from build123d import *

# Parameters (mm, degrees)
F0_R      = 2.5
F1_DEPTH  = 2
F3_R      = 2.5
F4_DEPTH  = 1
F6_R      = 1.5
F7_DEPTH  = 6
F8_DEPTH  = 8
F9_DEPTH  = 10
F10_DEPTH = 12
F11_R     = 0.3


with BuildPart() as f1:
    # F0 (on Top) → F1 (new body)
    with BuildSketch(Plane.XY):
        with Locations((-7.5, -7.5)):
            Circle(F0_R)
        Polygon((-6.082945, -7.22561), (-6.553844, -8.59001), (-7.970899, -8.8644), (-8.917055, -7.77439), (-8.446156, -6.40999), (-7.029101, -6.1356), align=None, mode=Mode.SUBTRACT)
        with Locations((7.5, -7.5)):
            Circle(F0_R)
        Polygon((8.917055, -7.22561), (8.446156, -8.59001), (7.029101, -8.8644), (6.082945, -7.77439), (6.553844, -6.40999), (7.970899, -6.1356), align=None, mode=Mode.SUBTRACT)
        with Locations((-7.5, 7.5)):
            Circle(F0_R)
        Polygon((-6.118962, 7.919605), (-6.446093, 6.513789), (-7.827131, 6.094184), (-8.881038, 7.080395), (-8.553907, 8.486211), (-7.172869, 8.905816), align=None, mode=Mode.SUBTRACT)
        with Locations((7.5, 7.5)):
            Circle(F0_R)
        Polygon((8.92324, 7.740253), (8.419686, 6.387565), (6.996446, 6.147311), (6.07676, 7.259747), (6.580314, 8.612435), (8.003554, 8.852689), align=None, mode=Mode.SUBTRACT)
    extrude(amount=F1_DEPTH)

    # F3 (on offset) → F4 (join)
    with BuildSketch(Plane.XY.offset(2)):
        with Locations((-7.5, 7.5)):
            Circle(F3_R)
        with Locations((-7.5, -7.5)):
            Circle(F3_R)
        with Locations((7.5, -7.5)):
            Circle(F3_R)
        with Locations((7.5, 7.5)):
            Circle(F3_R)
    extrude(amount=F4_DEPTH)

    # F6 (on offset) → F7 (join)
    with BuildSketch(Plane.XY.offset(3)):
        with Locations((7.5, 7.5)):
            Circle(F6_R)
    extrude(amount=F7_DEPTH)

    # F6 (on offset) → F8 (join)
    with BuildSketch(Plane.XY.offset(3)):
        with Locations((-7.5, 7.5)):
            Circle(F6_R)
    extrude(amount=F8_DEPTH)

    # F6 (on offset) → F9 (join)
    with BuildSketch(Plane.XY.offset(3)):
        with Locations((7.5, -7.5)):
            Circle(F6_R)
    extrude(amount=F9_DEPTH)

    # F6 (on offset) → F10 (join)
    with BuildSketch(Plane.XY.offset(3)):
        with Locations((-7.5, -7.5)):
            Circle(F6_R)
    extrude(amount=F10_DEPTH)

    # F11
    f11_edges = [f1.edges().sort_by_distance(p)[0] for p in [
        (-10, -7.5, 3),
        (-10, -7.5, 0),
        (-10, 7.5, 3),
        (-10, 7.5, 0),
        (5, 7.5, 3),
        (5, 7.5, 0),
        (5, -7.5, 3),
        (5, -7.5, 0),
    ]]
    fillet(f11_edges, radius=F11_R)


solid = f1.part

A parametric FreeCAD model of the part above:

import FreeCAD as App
import Part
import Sketcher
from FreeCAD import Vector


def edges_at(feature, points):
    """Names of the edges that pass closest to the given points."""
    edges = feature.Shape.Edges
    near = lambda p: min(range(len(edges)), key=lambda i: edges[i].distToShape(Part.Vertex(*p))[0])
    return sorted({f"Edge{near(p) + 1}" for p in points})

doc = App.newDocument("Part")
body = doc.addObject("PartDesign::Body", "Body")
body.AllowCompound = True

# Sketch on XY plane
sketch1 = body.newObject("Sketcher::SketchObject", "Sketch")
sketch1.AttachmentSupport = (doc.getObject("XY_Plane"), [""])
sketch1.MapMode = "FlatFace"
sketch1.addGeometry(Part.Circle(Vector(-7.5, -7.5, 0), Vector(0, 0, 1), 2.5), False)
sketch1.addGeometry(Part.LineSegment(Vector(-7, -6.1, 0), Vector(-6.1, -7.2, 0)), False)
sketch1.addGeometry(Part.LineSegment(Vector(-6.1, -7.2, 0), Vector(-6.6, -8.6, 0)), False)
sketch1.addGeometry(Part.LineSegment(Vector(-6.6, -8.6, 0), Vector(-8, -8.9, 0)), False)
sketch1.addGeometry(Part.LineSegment(Vector(-8, -8.9, 0), Vector(-8.9, -7.8, 0)), False)
sketch1.addGeometry(Part.LineSegment(Vector(-8.9, -7.8, 0), Vector(-8.4, -6.4, 0)), False)
sketch1.addGeometry(Part.LineSegment(Vector(-8.4, -6.4, 0), Vector(-7, -6.1, 0)), False)
sketch1.addGeometry(Part.Circle(Vector(7.5, -7.5, 0), Vector(0, 0, 1), 2.5), False)
sketch1.addGeometry(Part.LineSegment(Vector(8, -6.1, 0), Vector(8.9, -7.2, 0)), False)
sketch1.addGeometry(Part.LineSegment(Vector(8.9, -7.2, 0), Vector(8.4, -8.6, 0)), False)
sketch1.addGeometry(Part.LineSegment(Vector(8.4, -8.6, 0), Vector(7, -8.9, 0)), False)
sketch1.addGeometry(Part.LineSegment(Vector(7, -8.9, 0), Vector(6.1, -7.8, 0)), False)
sketch1.addGeometry(Part.LineSegment(Vector(6.1, -7.8, 0), Vector(6.6, -6.4, 0)), False)
sketch1.addGeometry(Part.LineSegment(Vector(6.6, -6.4, 0), Vector(8, -6.1, 0)), False)
sketch1.addGeometry(Part.Circle(Vector(-7.5, 7.5, 0), Vector(0, 0, 1), 2.5), False)
sketch1.addGeometry(Part.LineSegment(Vector(-7.2, 8.9, 0), Vector(-6.1, 7.9, 0)), False)
sketch1.addGeometry(Part.LineSegment(Vector(-6.1, 7.9, 0), Vector(-6.4, 6.5, 0)), False)
sketch1.addGeometry(Part.LineSegment(Vector(-6.4, 6.5, 0), Vector(-7.8, 6.1, 0)), False)
sketch1.addGeometry(Part.LineSegment(Vector(-7.8, 6.1, 0), Vector(-8.9, 7.1, 0)), False)
sketch1.addGeometry(Part.LineSegment(Vector(-8.9, 7.1, 0), Vector(-8.6, 8.5, 0)), False)
sketch1.addGeometry(Part.LineSegment(Vector(-8.6, 8.5, 0), Vector(-7.2, 8.9, 0)), False)
sketch1.addGeometry(Part.Circle(Vector(7.5, 7.5, 0), Vector(0, 0, 1), 2.5), False)
sketch1.addGeometry(Part.LineSegment(Vector(8, 8.9, 0), Vector(8.9, 7.7, 0)), False)
sketch1.addGeometry(Part.LineSegment(Vector(8.9, 7.7, 0), Vector(8.4, 6.4, 0)), False)
sketch1.addGeometry(Part.LineSegment(Vector(8.4, 6.4, 0), Vector(7, 6.1, 0)), False)
sketch1.addGeometry(Part.LineSegment(Vector(7, 6.1, 0), Vector(6.1, 7.3, 0)), False)
sketch1.addGeometry(Part.LineSegment(Vector(6.1, 7.3, 0), Vector(6.6, 8.6, 0)), False)
sketch1.addGeometry(Part.LineSegment(Vector(6.6, 8.6, 0), Vector(8, 8.9, 0)), False)
sketch1.addConstraint(Sketcher.Constraint("Coincident", 1, 2, 2, 1))
sketch1.addConstraint(Sketcher.Constraint("Coincident", 2, 2, 3, 1))
sketch1.addConstraint(Sketcher.Constraint("Coincident", 3, 2, 4, 1))
sketch1.addConstraint(Sketcher.Constraint("Coincident", 4, 2, 5, 1))
sketch1.addConstraint(Sketcher.Constraint("Coincident", 5, 2, 6, 1))
sketch1.addConstraint(Sketcher.Constraint("Coincident", 6, 2, 1, 1))
sketch1.addConstraint(Sketcher.Constraint("Coincident", 8, 2, 9, 1))
sketch1.addConstraint(Sketcher.Constraint("Coincident", 9, 2, 10, 1))
sketch1.addConstraint(Sketcher.Constraint("Coincident", 10, 2, 11, 1))
sketch1.addConstraint(Sketcher.Constraint("Coincident", 11, 2, 12, 1))
sketch1.addConstraint(Sketcher.Constraint("Coincident", 12, 2, 13, 1))
sketch1.addConstraint(Sketcher.Constraint("Coincident", 13, 2, 8, 1))
sketch1.addConstraint(Sketcher.Constraint("Coincident", 15, 2, 16, 1))
sketch1.addConstraint(Sketcher.Constraint("Coincident", 16, 2, 17, 1))
sketch1.addConstraint(Sketcher.Constraint("Coincident", 17, 2, 18, 1))
sketch1.addConstraint(Sketcher.Constraint("Coincident", 18, 2, 19, 1))
sketch1.addConstraint(Sketcher.Constraint("Coincident", 19, 2, 20, 1))
sketch1.addConstraint(Sketcher.Constraint("Coincident", 20, 2, 15, 1))
sketch1.addConstraint(Sketcher.Constraint("Coincident", 22, 2, 23, 1))
sketch1.addConstraint(Sketcher.Constraint("Coincident", 23, 2, 24, 1))
sketch1.addConstraint(Sketcher.Constraint("Coincident", 24, 2, 25, 1))
sketch1.addConstraint(Sketcher.Constraint("Coincident", 25, 2, 26, 1))
sketch1.addConstraint(Sketcher.Constraint("Coincident", 26, 2, 27, 1))
sketch1.addConstraint(Sketcher.Constraint("Coincident", 27, 2, 22, 1))
sketch1.addConstraint(Sketcher.Constraint("Equal", 0, 7))
sketch1.addConstraint(Sketcher.Constraint("Equal", 7, 14))
sketch1.addConstraint(Sketcher.Constraint("Equal", 14, 21))
sketch1.addConstraint(Sketcher.Constraint("Symmetric", 7, 3, 14, 3, -1, 1))
sketch1.addConstraint(Sketcher.Constraint("Symmetric", 0, 3, 21, 3, -1, 1))
sketch1.addConstraint(Sketcher.Constraint("Symmetric", 0, 3, 7, 3, -2))
sketch1.addConstraint(Sketcher.Constraint("Parallel", 1, 4))
sketch1.addConstraint(Sketcher.Constraint("Parallel", 2, 5))
sketch1.addConstraint(Sketcher.Constraint("Parallel", 3, 6))
sketch1.addConstraint(Sketcher.Constraint("Parallel", 4, 8))
sketch1.addConstraint(Sketcher.Constraint("Parallel", 5, 9))
sketch1.addConstraint(Sketcher.Constraint("Parallel", 6, 10))
sketch1.addConstraint(Sketcher.Constraint("Parallel", 8, 11))
sketch1.addConstraint(Sketcher.Constraint("Parallel", 9, 12))
sketch1.addConstraint(Sketcher.Constraint("Parallel", 10, 13))
sketch1.addConstraint(Sketcher.Constraint("Parallel", 15, 18))
sketch1.addConstraint(Sketcher.Constraint("Parallel", 16, 19))
sketch1.addConstraint(Sketcher.Constraint("Parallel", 17, 20))
sketch1.addConstraint(Sketcher.Constraint("Parallel", 22, 25))
sketch1.addConstraint(Sketcher.Constraint("Parallel", 23, 26))
sketch1.addConstraint(Sketcher.Constraint("Parallel", 24, 27))
sketch1.addConstraint(Sketcher.Constraint("Horizontal", 1, 2, 8, 2))
sketch1.addConstraint(Sketcher.Constraint("Horizontal", 2, 2, 9, 2))
sketch1.addConstraint(Sketcher.Constraint("Horizontal", 3, 2, 10, 2))
sketch1.addConstraint(Sketcher.Constraint("Horizontal", 4, 2, 11, 2))
sketch1.addConstraint(Sketcher.Constraint("Horizontal", 5, 2, 12, 2))
sketch1.addConstraint(Sketcher.Constraint("Equal", 1, 2))
sketch1.addConstraint(Sketcher.Constraint("Equal", 2, 3))
sketch1.addConstraint(Sketcher.Constraint("Equal", 3, 4))
sketch1.addConstraint(Sketcher.Constraint("Equal", 13, 15))
sketch1.addConstraint(Sketcher.Constraint("Equal", 15, 16))
sketch1.addConstraint(Sketcher.Constraint("Equal", 16, 17))
sketch1.addConstraint(Sketcher.Constraint("Equal", 17, 18))
sketch1.addConstraint(Sketcher.Constraint("Equal", 20, 22))
sketch1.addConstraint(Sketcher.Constraint("Equal", 22, 23))
sketch1.addConstraint(Sketcher.Constraint("Equal", 23, 24))
sketch1.addConstraint(Sketcher.Constraint("Equal", 24, 25))
sketch1.addConstraint(Sketcher.Constraint("Diameter", 0, 5.0))
sketch1.addConstraint(Sketcher.Constraint("DistanceX", 0, 3, 7, 3, 15.0))
sketch1.addConstraint(Sketcher.Constraint("DistanceY", 0, 3, 14, 3, 15.0))
sketch1.addConstraint(Sketcher.Constraint("DistanceX", 1, 2, 8, 2, 15.0))
sketch1.addConstraint(Sketcher.Constraint("DistanceX", 3, 2, -1, 1, 7.970899))
sketch1.addConstraint(Sketcher.Constraint("DistanceY", 3, 2, -1, 1, 8.8644))
sketch1.addConstraint(Sketcher.Constraint("DistanceX", 6, 2, -1, 1, 7.029101))
sketch1.addConstraint(Sketcher.Constraint("DistanceY", 6, 2, -1, 1, 6.1356))
sketch1.addConstraint(Sketcher.Constraint("DistanceX", 2, 2, 1, 2, 0.470899))
sketch1.addConstraint(Sketcher.Constraint("DistanceY", 2, 2, 1, 2, 1.3644))
sketch1.addConstraint(Sketcher.Constraint("DistanceY", 1, 2, 16, 2, 13.739399))
sketch1.addConstraint(Sketcher.Constraint("DistanceX", 12, 2, 24, 2, 0.442602))
sketch1.addConstraint(Sketcher.Constraint("DistanceY", 12, 2, 24, 2, 12.557301))
sketch1.addConstraint(Sketcher.Constraint("DistanceX", 15, 2, -1, 1, 6.118962))
sketch1.addConstraint(Sketcher.Constraint("DistanceX", 17, 2, -1, 1, 7.827131))
sketch1.addConstraint(Sketcher.Constraint("DistanceY", -1, 1, 19, 2, 8.486211))
sketch1.addConstraint(Sketcher.Constraint("DistanceX", 20, 2, -1, 1, 7.172869))
sketch1.addConstraint(Sketcher.Constraint("DistanceX", -1, 1, 22, 2, 8.92324))
sketch1.addConstraint(Sketcher.Constraint("DistanceX", -1, 1, 25, 2, 6.07676))
sketch1.addConstraint(Sketcher.Constraint("DistanceY", -1, 1, 27, 2, 8.852689))
pad1 = body.newObject("PartDesign::Pad", "Pad")
pad1.Profile = sketch1
pad1.Length = 2

# Sketch on XY plane
sketch2 = body.newObject("Sketcher::SketchObject", "Sketch001")
sketch2.AttachmentSupport = (doc.getObject("XY_Plane"), [""])
sketch2.MapMode = "FlatFace"
sketch2.AttachmentOffset = App.Placement(Vector(0, 0, 2), App.Rotation())
sketch2.addGeometry(Part.Circle(Vector(-7.5, 7.5, 0), Vector(0, 0, 1), 2.5), False)
sketch2.addGeometry(Part.Circle(Vector(-7.5, -7.5, 0), Vector(0, 0, 1), 2.5), False)
sketch2.addGeometry(Part.Circle(Vector(7.5, -7.5, 0), Vector(0, 0, 1), 2.5), False)
sketch2.addGeometry(Part.Circle(Vector(7.5, 7.5, 0), Vector(0, 0, 1), 2.5), False)
sketch2.addConstraint(Sketcher.Constraint("Equal", 0, 1))
sketch2.addConstraint(Sketcher.Constraint("Equal", 1, 2))
sketch2.addConstraint(Sketcher.Constraint("Equal", 2, 3))
sketch2.addConstraint(Sketcher.Constraint("Symmetric", 0, 3, 2, 3, -1, 1))
sketch2.addConstraint(Sketcher.Constraint("Symmetric", 1, 3, 3, 3, -1, 1))
sketch2.addConstraint(Sketcher.Constraint("Symmetric", 1, 3, 2, 3, -2))
sketch2.addConstraint(Sketcher.Constraint("Diameter", 0, 5.0))
sketch2.addConstraint(Sketcher.Constraint("DistanceY", 1, 3, 0, 3, 15.0))
sketch2.addConstraint(Sketcher.Constraint("DistanceX", 1, 3, 2, 3, 15.0))
pad2 = body.newObject("PartDesign::Pad", "Pad001")
pad2.Profile = sketch2
pad2.Length = 1

# Sketch on XY plane
sketch3 = body.newObject("Sketcher::SketchObject", "Sketch002")
sketch3.AttachmentSupport = (doc.getObject("XY_Plane"), [""])
sketch3.MapMode = "FlatFace"
sketch3.AttachmentOffset = App.Placement(Vector(0, 0, 3), App.Rotation())
sketch3.addGeometry(Part.Circle(Vector(7.5, 7.5, 0), Vector(0, 0, 1), 1.5), False)
sketch3.addConstraint(Sketcher.Constraint("Diameter", 0, 3.0))
sketch3.addConstraint(Sketcher.Constraint("DistanceX", -1, 1, 0, 3, 7.5))
sketch3.addConstraint(Sketcher.Constraint("DistanceY", -1, 1, 0, 3, 7.5))
pad3 = body.newObject("PartDesign::Pad", "Pad002")
pad3.Profile = sketch3
pad3.Length = 6

# Sketch on XY plane
sketch4 = body.newObject("Sketcher::SketchObject", "Sketch003")
sketch4.AttachmentSupport = (doc.getObject("XY_Plane"), [""])
sketch4.MapMode = "FlatFace"
sketch4.AttachmentOffset = App.Placement(Vector(0, 0, 3), App.Rotation())
sketch4.addGeometry(Part.Circle(Vector(-7.5, 7.5, 0), Vector(0, 0, 1), 1.5), False)
sketch4.addConstraint(Sketcher.Constraint("Diameter", 0, 3.0))
sketch4.addConstraint(Sketcher.Constraint("DistanceX", 0, 3, -1, 1, 7.5))
sketch4.addConstraint(Sketcher.Constraint("DistanceY", -1, 1, 0, 3, 7.5))
pad4 = body.newObject("PartDesign::Pad", "Pad003")
pad4.Profile = sketch4
pad4.Length = 8

# Sketch on XY plane
sketch5 = body.newObject("Sketcher::SketchObject", "Sketch004")
sketch5.AttachmentSupport = (doc.getObject("XY_Plane"), [""])
sketch5.MapMode = "FlatFace"
sketch5.AttachmentOffset = App.Placement(Vector(0, 0, 3), App.Rotation())
sketch5.addGeometry(Part.Circle(Vector(7.5, -7.5, 0), Vector(0, 0, 1), 1.5), False)
sketch5.addConstraint(Sketcher.Constraint("Diameter", 0, 3.0))
sketch5.addConstraint(Sketcher.Constraint("DistanceX", -1, 1, 0, 3, 7.5))
sketch5.addConstraint(Sketcher.Constraint("DistanceY", 0, 3, -1, 1, 7.5))
pad5 = body.newObject("PartDesign::Pad", "Pad004")
pad5.Profile = sketch5
pad5.Length = 10

# Sketch on XY plane
sketch6 = body.newObject("Sketcher::SketchObject", "Sketch005")
sketch6.AttachmentSupport = (doc.getObject("XY_Plane"), [""])
sketch6.MapMode = "FlatFace"
sketch6.AttachmentOffset = App.Placement(Vector(0, 0, 3), App.Rotation())
sketch6.addGeometry(Part.Circle(Vector(-7.5, -7.5, 0), Vector(0, 0, 1), 1.5), False)
sketch6.addConstraint(Sketcher.Constraint("Diameter", 0, 3.0))
sketch6.addConstraint(Sketcher.Constraint("DistanceX", 0, 3, -1, 1, 7.5))
sketch6.addConstraint(Sketcher.Constraint("DistanceY", 0, 3, -1, 1, 7.5))
pad6 = body.newObject("PartDesign::Pad", "Pad005")
pad6.Profile = sketch6
pad6.Length = 12
doc.recompute()

fillet = body.newObject("PartDesign::Fillet", "Fillet")
fillet.Base = (pad6, edges_at(pad6, [
    (-10, -7.5, 3),
    (-10, -7.5, 0),
    (-10, 7.5, 3),
    (-10, 7.5, 0),
    (5, 7.5, 3),
    (5, 7.5, 0),
    (5, -7.5, 3),
    (5, -7.5, 0),
]))
fillet.Radius = 0.3

doc.recompute()
